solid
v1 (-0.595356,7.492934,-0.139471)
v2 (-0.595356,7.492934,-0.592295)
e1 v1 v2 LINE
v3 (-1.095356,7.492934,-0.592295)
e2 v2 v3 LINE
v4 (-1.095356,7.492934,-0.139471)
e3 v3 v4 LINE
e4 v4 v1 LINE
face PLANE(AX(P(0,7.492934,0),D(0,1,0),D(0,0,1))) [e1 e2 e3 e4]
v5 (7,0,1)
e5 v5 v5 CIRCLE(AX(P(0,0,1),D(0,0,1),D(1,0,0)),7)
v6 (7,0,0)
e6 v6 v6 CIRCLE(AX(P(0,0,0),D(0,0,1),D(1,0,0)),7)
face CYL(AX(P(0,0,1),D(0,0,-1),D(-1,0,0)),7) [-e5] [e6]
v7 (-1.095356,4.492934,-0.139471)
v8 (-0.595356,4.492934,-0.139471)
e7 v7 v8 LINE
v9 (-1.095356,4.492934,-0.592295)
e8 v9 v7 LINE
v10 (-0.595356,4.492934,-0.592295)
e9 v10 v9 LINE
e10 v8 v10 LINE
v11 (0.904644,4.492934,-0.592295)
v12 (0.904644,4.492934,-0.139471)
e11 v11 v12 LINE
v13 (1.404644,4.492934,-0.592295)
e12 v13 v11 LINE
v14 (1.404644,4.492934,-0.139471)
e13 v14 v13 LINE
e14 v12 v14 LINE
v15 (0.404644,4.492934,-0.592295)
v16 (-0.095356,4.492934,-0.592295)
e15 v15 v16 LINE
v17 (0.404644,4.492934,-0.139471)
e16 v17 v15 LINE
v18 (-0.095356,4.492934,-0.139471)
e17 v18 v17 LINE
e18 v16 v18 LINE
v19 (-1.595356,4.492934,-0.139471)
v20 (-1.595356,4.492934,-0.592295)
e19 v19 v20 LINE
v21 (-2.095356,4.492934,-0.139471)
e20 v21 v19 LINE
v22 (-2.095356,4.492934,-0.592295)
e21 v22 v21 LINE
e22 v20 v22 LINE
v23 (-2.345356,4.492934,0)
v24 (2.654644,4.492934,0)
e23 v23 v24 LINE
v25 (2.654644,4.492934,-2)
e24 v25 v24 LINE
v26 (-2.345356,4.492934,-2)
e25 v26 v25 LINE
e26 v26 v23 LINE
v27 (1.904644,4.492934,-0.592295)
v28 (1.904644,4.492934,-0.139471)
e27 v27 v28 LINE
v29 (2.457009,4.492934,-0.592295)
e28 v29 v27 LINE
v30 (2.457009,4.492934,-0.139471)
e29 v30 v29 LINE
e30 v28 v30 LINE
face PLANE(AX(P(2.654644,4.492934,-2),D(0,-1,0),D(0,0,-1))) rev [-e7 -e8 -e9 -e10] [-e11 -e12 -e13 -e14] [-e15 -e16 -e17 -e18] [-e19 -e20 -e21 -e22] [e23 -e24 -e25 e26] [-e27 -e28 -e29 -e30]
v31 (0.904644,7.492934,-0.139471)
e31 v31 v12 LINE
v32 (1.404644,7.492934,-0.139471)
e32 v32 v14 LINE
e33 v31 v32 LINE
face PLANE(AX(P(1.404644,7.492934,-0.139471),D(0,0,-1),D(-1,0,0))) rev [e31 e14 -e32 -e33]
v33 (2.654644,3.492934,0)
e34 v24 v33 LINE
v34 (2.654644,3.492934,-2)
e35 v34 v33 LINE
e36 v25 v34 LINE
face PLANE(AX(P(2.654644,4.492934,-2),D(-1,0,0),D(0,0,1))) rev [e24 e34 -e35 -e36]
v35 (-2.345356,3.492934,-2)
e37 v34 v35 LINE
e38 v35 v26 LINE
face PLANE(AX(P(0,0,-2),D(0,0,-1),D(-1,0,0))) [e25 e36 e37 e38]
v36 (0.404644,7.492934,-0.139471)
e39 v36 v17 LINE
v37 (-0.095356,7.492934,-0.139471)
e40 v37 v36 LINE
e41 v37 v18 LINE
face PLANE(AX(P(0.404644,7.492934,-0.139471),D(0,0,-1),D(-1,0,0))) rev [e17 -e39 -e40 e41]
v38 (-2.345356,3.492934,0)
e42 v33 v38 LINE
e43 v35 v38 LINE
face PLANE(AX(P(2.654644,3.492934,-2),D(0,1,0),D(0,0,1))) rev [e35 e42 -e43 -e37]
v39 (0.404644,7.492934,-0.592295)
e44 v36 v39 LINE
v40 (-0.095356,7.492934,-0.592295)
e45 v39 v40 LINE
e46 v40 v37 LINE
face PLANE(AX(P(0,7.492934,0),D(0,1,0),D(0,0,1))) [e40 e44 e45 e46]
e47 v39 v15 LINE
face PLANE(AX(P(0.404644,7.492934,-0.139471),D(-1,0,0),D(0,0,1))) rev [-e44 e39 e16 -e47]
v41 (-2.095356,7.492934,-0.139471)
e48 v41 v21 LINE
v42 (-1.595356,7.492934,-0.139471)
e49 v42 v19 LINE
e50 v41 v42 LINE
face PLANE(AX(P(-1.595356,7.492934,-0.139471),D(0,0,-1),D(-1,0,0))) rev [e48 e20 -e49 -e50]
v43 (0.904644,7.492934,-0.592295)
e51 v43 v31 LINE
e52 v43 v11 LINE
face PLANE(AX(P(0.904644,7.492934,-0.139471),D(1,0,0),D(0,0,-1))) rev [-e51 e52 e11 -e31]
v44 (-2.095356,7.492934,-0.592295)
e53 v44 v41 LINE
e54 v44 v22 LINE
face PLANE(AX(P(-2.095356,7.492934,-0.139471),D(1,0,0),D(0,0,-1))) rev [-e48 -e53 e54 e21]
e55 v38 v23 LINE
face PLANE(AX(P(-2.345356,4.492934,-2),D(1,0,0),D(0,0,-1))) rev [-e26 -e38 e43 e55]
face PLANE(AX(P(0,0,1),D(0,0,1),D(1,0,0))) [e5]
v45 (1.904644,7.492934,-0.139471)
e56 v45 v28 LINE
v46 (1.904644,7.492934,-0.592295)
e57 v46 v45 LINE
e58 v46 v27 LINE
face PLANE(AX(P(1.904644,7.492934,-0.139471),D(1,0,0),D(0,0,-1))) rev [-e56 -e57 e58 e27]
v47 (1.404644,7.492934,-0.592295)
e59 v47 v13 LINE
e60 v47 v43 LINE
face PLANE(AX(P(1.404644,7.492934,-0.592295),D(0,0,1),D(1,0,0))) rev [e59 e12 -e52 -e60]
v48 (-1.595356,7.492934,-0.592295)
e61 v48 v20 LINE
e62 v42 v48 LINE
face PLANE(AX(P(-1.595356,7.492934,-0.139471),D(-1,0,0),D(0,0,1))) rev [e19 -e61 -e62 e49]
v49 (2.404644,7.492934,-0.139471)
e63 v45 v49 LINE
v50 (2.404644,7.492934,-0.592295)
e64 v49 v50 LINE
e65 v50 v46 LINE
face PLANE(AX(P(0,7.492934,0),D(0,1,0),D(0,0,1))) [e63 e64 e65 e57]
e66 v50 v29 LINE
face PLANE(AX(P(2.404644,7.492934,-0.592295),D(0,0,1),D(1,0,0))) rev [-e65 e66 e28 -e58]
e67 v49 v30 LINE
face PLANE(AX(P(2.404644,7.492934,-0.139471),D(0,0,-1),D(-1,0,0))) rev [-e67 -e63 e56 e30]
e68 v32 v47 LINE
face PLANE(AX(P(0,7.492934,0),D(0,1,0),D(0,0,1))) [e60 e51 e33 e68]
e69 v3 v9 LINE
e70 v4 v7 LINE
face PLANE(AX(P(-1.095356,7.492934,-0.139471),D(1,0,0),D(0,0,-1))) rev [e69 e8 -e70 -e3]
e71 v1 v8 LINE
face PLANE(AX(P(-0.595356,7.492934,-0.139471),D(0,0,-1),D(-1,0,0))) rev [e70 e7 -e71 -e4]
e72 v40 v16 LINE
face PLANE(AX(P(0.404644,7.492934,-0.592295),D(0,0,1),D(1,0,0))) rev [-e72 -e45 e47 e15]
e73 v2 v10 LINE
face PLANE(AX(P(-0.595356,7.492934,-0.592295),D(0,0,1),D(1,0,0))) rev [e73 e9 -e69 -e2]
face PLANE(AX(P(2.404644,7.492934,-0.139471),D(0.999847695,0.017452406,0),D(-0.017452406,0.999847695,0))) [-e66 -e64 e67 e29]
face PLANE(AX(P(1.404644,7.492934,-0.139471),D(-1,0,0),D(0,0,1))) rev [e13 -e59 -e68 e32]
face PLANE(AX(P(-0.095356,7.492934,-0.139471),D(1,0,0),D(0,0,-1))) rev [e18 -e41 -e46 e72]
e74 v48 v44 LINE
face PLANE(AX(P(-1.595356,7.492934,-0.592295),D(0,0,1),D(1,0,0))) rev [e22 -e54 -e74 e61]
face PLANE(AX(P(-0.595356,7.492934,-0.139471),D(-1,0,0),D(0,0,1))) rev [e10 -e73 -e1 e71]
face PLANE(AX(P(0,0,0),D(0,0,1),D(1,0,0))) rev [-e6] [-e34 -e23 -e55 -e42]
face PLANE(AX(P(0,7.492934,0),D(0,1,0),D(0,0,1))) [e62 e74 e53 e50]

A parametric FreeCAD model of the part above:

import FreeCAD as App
import Part
import Sketcher


def faces_at(feature, points):
    """Names of the faces that lie closest to the given points."""
    faces = feature.Shape.Faces
    near = lambda p: min(range(len(faces)), key=lambda i: faces[i].distToShape(Part.Vertex(*p))[0])
    return sorted({f"Face{near(p) + 1}" for p in points})

doc = App.newDocument("Part")
body = doc.addObject("PartDesign::Body", "Body")

# Sketch on XY plane
sketch1 = doc.addObject("Sketcher::SketchObject", "Sketch")
body.addObject(sketch1)
sketch1.AttachmentSupport = (doc.XY_Plane, [""])
sketch1.MapMode = "FlatFace"
sketch1.addGeometry(Part.Circle(App.Vector(0, 0, 0), App.Vector(0, 0, 1), 7), False)
sketch1.addConstraint([
    Sketcher.Constraint("Coincident", 0, 3, -1, 1),
    Sketcher.Constraint("Diameter", 0, 14.0),
])
pad1 = doc.addObject("PartDesign::Pad", "Pad")
body.addObject(pad1)
pad1.Profile = sketch1
pad1.Length = 1

# Sketch on XY plane
sketch2 = doc.addObject("Sketcher::SketchObject", "Sketch001")
body.addObject(sketch2)
sketch2.AttachmentSupport = (doc.XY_Plane, [""])
sketch2.MapMode = "FlatFace"
sketch2.addGeometry([
    Part.LineSegment(App.Vector(2.654644, 4.492934, 0), App.Vector(2.654644, 3.492934, 0)),
    Part.LineSegment(App.Vector(2.654644, 3.492934, 0), App.Vector(-2.345356, 3.492934, 0)),
    Part.LineSegment(App.Vector(-2.345356, 3.492934, 0), App.Vector(-2.345356, 4.492934, 0)),
    Part.LineSegment(App.Vector(-2.345356, 4.492934, 0), App.Vector(2.654644, 4.492934, 0)),
], False)
sketch2.addConstraint([
    Sketcher.Constraint("Coincident", 0, 2, 1, 1),
    Sketcher.Constraint("Coincident", 1, 2, 2, 1),
    Sketcher.Constraint("Coincident", 2, 2, 3, 1),
    Sketcher.Constraint("Coincident", 3, 2, 0, 1),
    Sketcher.Constraint("Vertical", 0),
    Sketcher.Constraint("Horizontal", 1),
    Sketcher.Constraint("Vertical", 2),
    Sketcher.Constraint("Horizontal", 3),
    Sketcher.Constraint("DistanceX", 1, 2, 1, 1, 5.0),
    Sketcher.Constraint("DistanceY", 0, 2, 0, 1, 1.0),
    Sketcher.Constraint("DistanceX", -1, 1, 0, 2, 2.654644),
    Sketcher.Constraint("DistanceY", -1, 1, 0, 2, 3.492934),
])
pad2 = doc.addObject("PartDesign::Pad", "Pad001")
body.addObject(pad2)
pad2.Profile = sketch2
pad2.Length = 2
pad2.Reversed = True

# Sketch on XZ plane
sketch3 = doc.addObject("Sketcher::SketchObject", "Sketch002")
body.addObject(sketch3)
sketch3.AttachmentSupport = (doc.XZ_Plane, [""])
sketch3.MapMode = "FlatFace"
sketch3.AttachmentOffset = App.Placement(App.Vector(0, 0, -4.492934), App.Rotation())
sketch3.addGeometry([
    Part.LineSegment(App.Vector(0.904644, -0.592295, 0), App.Vector(0.904644, -0.139471, 0)),  # 0
    Part.LineSegment(App.Vector(0.904644, -0.139471, 0), App.Vector(1.404644, -0.139471, 0)),  # 1
    Part.LineSegment(App.Vector(1.404644, -0.139471, 0), App.Vector(1.404644, -0.592295, 0)),  # 2
    Part.LineSegment(App.Vector(1.404644, -0.592295, 0), App.Vector(0.904644, -0.592295, 0)),  # 3
    Part.LineSegment(App.Vector(1.904644, -0.592295, 0), App.Vector(1.904644, -0.139471, 0)),  # 4
    Part.LineSegment(App.Vector(1.904644, -0.139471, 0), App.Vector(2.404644, -0.139471, 0)),  # 5
    Part.LineSegment(App.Vector(2.404644, -0.139471, 0), App.Vector(2.404644, -0.592295, 0)),  # 6
    Part.LineSegment(App.Vector(2.404644, -0.592295, 0), App.Vector(1.904644, -0.592295, 0)),  # 7
    Part.LineSegment(App.Vector(-0.095356, -0.592295, 0), App.Vector(-0.095356, -0.139471, 0)),  # 8
    Part.LineSegment(App.Vector(-0.095356, -0.139471, 0), App.Vector(0.404644, -0.139471, 0)),  # 9
    Part.LineSegment(App.Vector(0.404644, -0.139471, 0), App.Vector(0.404644, -0.592295, 0)),  # 10
    Part.LineSegment(App.Vector(0.404644, -0.592295, 0), App.Vector(-0.095356, -0.592295, 0)),  # 11
    Part.LineSegment(App.Vector(-1.095356, -0.592295, 0), App.Vector(-1.095356, -0.139471, 0)),  # 12
    Part.LineSegment(App.Vector(-1.095356, -0.139471, 0), App.Vector(-0.595356, -0.139471, 0)),  # 13
    Part.LineSegment(App.Vector(-0.595356, -0.139471, 0), App.Vector(-0.595356, -0.592295, 0)),  # 14
    Part.LineSegment(App.Vector(-0.595356, -0.592295, 0), App.Vector(-1.095356, -0.592295, 0)),  # 15
    Part.LineSegment(App.Vector(-2.095356, -0.592295, 0), App.Vector(-2.095356, -0.139471, 0)),  # 16
    Part.LineSegment(App.Vector(-2.095356, -0.139471, 0), App.Vector(-1.595356, -0.139471, 0)),  # 17
    Part.LineSegment(App.Vector(-1.595356, -0.139471, 0), App.Vector(-1.595356, -0.592295, 0)),  # 18
    Part.LineSegment(App.Vector(-1.595356, -0.592295, 0), App.Vector(-2.095356, -0.592295, 0)),  # 19
], False)
sketch3.addConstraint([
    Sketcher.Constraint("Coincident", 0, 2, 1, 1),
    Sketcher.Constraint("Coincident", 1, 2, 2, 1),
    Sketcher.Constraint("Coincident", 2, 2, 3, 1),
    Sketcher.Constraint("Coincident", 3, 2, 0, 1),
    Sketcher.Constraint("Coincident", 4, 2, 5, 1),
    Sketcher.Constraint("Coincident", 5, 2, 6, 1),
    Sketcher.Constraint("Coincident", 6, 2, 7, 1),
    Sketcher.Constraint("Coincident", 7, 2, 4, 1),
    Sketcher.Constraint("Coincident", 8, 2, 9, 1),
    Sketcher.Constraint("Coincident", 9, 2, 10, 1),
    Sketcher.Constraint("Coincident", 10, 2, 11, 1),
    Sketcher.Constraint("Coincident", 11, 2, 8, 1),
    Sketcher.Constraint("Coincident", 12, 2, 13, 1),
    Sketcher.Constraint("Coincident", 13, 2, 14, 1),
    Sketcher.Constraint("Coincident", 14, 2, 15, 1),
    Sketcher.Constraint("Coincident", 15, 2, 12, 1),
    Sketcher.Constraint("Coincident", 16, 2, 17, 1),
    Sketcher.Constraint("Coincident", 17, 2, 18, 1),
    Sketcher.Constraint("Coincident", 18, 2, 19, 1),
    Sketcher.Constraint("Coincident", 19, 2, 16, 1),
    Sketcher.Constraint("Vertical", 0),
    Sketcher.Constraint("Horizontal", 1),
    Sketcher.Constraint("Vertical", 2),
    Sketcher.Constraint("Horizontal", 3),
    Sketcher.Constraint("Vertical", 4),
    Sketcher.Constraint("Horizontal", 5),
    Sketcher.Constraint("Vertical", 6),
    Sketcher.Constraint("Horizontal", 7),
    Sketcher.Constraint("Vertical", 8),
    Sketcher.Constraint("Horizontal", 9),
    Sketcher.Constraint("Vertical", 10),
    Sketcher.Constraint("Horizontal", 11),
    Sketcher.Constraint("Vertical", 12),
    Sketcher.Constraint("Horizontal", 13),
    Sketcher.Constraint("Vertical", 14),
    Sketcher.Constraint("Horizontal", 15),
    Sketcher.Constraint("Vertical", 16),
    Sketcher.Constraint("Horizontal", 17),
    Sketcher.Constraint("Vertical", 18),
    Sketcher.Constraint("Horizontal", 19),
    Sketcher.Constraint("Horizontal", 1, 2, 4, 2),
    Sketcher.Constraint("Horizontal", 3, 2, 6, 2),
    Sketcher.Constraint("Horizontal", 5, 2, 8, 2),
    Sketcher.Constraint("Horizontal", 7, 2, 10, 2),
    Sketcher.Constraint("Horizontal", 9, 2, 12, 2),
    Sketcher.Constraint("Horizontal", 11, 2, 14, 2),
    Sketcher.Constraint("Horizontal", 13, 2, 16, 2),
    Sketcher.Constraint("Horizontal", 15, 2, 18, 2),
    Sketcher.Constraint("Equal", 3, 5),
    Sketcher.Constraint("Equal", 7, 9),
    Sketcher.Constraint("Equal", 11, 13),
    Sketcher.Constraint("Equal", 15, 17),
    Sketcher.Constraint("DistanceX", 1, 1, 1, 2, 0.5),
    Sketcher.Constraint("DistanceX", 0, 2, 4, 2, 1.0),
    Sketcher.Constraint("DistanceX", 8, 2, 0, 2, 1.0),
    Sketcher.Constraint("DistanceX", 12, 2, 8, 2, 1.0),
    Sketcher.Constraint("DistanceX", 16, 2, 12, 2, 1.0),
    Sketcher.Constraint("DistanceY", 0, 1, 0, 2, 0.452824),
    Sketcher.Constraint("DistanceY", 0, 2, -1, 1, 0.139471),
    Sketcher.Constraint("DistanceX", -1, 1, 0, 2, 0.904644),
])
pad3 = doc.addObject("PartDesign::Pad", "Pad002")
body.addObject(pad3)
pad3.Profile = sketch3
pad3.Length = 3
pad3.Reversed = True
doc.recompute()

datumplane = doc.addObject("PartDesign::Plane", "DatumPlane")
body.addObject(datumplane)
datumplane.AttachmentSupport = (doc.XZ_Plane, [""])
datumplane.MapMode = "FlatFace"
datumplane.AttachmentOffset = App.Placement(App.Vector(0, 0, -7.492934), App.Rotation())
draft = doc.addObject("PartDesign::Draft", "Draft")
body.addObject(draft)
draft.Base = (pad3, faces_at(pad3, [(2.405, 5.993, -0.366)]))
draft.NeutralPlane = (datumplane, [""])
draft.Angle = 1
draft.Reversed = True

doc.recompute()
